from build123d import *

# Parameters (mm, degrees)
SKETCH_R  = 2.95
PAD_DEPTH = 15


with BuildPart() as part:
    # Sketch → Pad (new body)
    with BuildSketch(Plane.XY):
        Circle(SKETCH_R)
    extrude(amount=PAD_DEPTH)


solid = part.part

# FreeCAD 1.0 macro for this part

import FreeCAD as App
import Part
import Sketcher
from FreeCAD import Vector

doc = App.newDocument("Part")
body = doc.addObject("PartDesign::Body", "Body")

# Sketch on XY plane
sketch1 = body.newObject("Sketcher::SketchObject", "Sketch")
sketch1.AttachmentSupport = (doc.getObject("XY_Plane"), [""])
sketch1.MapMode = "FlatFace"
sketch1.addGeometry(Part.Circle(Vector(0, 0, 0), Vector(0, 0, 1), 3), False)
sketch1.addConstraint([
    Sketcher.Constraint("Coincident", 0, 3, -1, 1),
    Sketcher.Constraint("Diameter", 0, 5.9),
])
pad1 = body.newObject("PartDesign::Pad", "Pad")
pad1.Profile = sketch1
pad1.Length = 15

doc.recompute()
